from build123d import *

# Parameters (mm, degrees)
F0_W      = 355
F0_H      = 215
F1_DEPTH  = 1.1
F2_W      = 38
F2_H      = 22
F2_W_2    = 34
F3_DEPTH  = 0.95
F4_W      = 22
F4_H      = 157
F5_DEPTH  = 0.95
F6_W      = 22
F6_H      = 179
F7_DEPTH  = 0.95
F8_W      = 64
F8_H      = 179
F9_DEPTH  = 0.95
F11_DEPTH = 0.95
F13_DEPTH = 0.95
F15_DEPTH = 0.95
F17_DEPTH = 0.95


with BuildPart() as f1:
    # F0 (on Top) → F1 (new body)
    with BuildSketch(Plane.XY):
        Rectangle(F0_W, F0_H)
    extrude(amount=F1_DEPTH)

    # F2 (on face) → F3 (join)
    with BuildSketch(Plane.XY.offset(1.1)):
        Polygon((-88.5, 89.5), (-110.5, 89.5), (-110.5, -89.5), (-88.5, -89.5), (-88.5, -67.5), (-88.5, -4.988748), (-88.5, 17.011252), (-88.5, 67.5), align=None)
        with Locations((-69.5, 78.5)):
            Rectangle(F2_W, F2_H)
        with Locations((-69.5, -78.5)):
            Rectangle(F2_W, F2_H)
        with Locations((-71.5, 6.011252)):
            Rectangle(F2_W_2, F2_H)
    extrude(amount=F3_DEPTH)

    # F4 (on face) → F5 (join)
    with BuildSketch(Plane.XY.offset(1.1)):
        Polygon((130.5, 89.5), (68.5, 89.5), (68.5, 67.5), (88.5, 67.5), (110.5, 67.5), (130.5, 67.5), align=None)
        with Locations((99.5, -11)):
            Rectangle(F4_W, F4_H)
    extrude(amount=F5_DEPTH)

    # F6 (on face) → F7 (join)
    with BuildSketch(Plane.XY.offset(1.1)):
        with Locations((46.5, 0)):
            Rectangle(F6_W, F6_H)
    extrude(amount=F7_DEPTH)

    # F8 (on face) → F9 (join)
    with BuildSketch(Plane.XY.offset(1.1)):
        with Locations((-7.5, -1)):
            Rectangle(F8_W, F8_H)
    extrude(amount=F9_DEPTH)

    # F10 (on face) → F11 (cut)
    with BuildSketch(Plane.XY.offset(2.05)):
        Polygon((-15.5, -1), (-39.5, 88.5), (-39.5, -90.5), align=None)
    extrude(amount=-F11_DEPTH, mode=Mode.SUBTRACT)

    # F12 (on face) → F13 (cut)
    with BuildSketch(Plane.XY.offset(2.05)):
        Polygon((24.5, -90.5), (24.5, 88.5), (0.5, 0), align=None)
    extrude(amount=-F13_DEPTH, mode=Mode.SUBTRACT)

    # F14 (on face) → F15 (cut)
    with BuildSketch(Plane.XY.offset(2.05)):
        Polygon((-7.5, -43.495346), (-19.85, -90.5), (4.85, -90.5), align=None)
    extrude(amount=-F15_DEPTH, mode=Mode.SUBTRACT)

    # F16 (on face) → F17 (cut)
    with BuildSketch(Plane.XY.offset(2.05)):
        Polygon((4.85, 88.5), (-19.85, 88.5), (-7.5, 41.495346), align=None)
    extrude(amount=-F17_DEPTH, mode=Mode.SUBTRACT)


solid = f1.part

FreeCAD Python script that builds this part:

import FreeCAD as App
import Part
import Sketcher

V = App.Vector
Q = App.Units.Quantity


def add_polygon(sketch, points):
    """Adds a closed chain of lines whose ends are joined by coincident constraints."""
    first, n = sketch.GeometryCount, len(points)
    for a, b in zip(points, points[1:] + points[:1]):
        sketch.addGeometry(Part.LineSegment(App.Vector(*a, 0), App.Vector(*b, 0)), False)
    for i in range(n):
        sketch.addConstraint(Sketcher.Constraint("Coincident", first + i, 2, first + (i + 1) % n, 1))

doc = App.newDocument("Part")
body = doc.addObject("PartDesign::Body", "Body")

# Sketch on XY plane
sketch1 = doc.addObject("Sketcher::SketchObject", "Sketch")
body.addObject(sketch1)
sketch1.AttachmentSupport = (doc.XY_Plane, [""])
sketch1.MapMode = "FlatFace"
add_polygon(sketch1, [(-178, 108), (-178, -108), (178, -108), (178, 108)])  # lines 0-3
sketch1.addConstraint([
    Sketcher.Constraint("Vertical", 0),
    Sketcher.Constraint("Horizontal", 1),
    Sketcher.Constraint("Vertical", 2),
    Sketcher.Constraint("Horizontal", 3),
    Sketcher.Constraint("Symmetric", 0, 2, 2, 2, -1, 1),
    Sketcher.Constraint("DistanceX", 1, 1, 1, 2, Q("355 mm")),
    Sketcher.Constraint("DistanceY", 0, 2, 0, 1, Q("215 mm")),
])
pad1 = doc.addObject("PartDesign::Pad", "Pad")
body.addObject(pad1)
pad1.Profile = sketch1
pad1.Length = 1.1

# Sketch on XY plane
sketch2 = doc.addObject("Sketcher::SketchObject", "Sketch001")
body.addObject(sketch2)
sketch2.AttachmentSupport = (doc.XY_Plane, [""])
sketch2.MapMode = "FlatFace"
sketch2.AttachmentOffset = App.Placement(V(0, 0, 1.1), App.Rotation())
add_polygon(sketch2, [(-110, 90), (-110, -90), (-50, -90), (-50, -68), (-88, -68), (-88, -5), (-54, -5), (-54, 17), (-88, 17), (-88, 68), (-50, 68), (-50, 90)])  # lines 0-11
sketch2.addConstraint([
    Sketcher.Constraint("Vertical", 0),
    Sketcher.Constraint("Horizontal", 1),
    Sketcher.Constraint("Vertical", 2),
    Sketcher.Constraint("Horizontal", 3),
    Sketcher.Constraint("Vertical", 4),
    Sketcher.Constraint("Horizontal", 5),
    Sketcher.Constraint("Vertical", 6),
    Sketcher.Constraint("Horizontal", 7),
    Sketcher.Constraint("Vertical", 8),
    Sketcher.Constraint("Horizontal", 9),
    Sketcher.Constraint("Vertical", 10),
    Sketcher.Constraint("Horizontal", 11),
    Sketcher.Constraint("Symmetric", 3, 2, 8, 2, -1),
    Sketcher.Constraint("Symmetric", 1, 2, 10, 2, -1),
    Sketcher.Constraint("Equal", 2, 6),
    Sketcher.Constraint("DistanceX", 1, 1, 1, 2, Q("60 mm")),
    Sketcher.Constraint("DistanceX", 3, 2, 3, 1, Q("38 mm")),
    Sketcher.Constraint("DistanceX", 5, 1, 5, 2, Q("34 mm")),
    Sketcher.Constraint("DistanceY", 0, 2, 0, 1, Q("179 mm")),
    Sketcher.Constraint("DistanceY", 2, 1, 2, 2, Q("22 mm")),
    Sketcher.Constraint("DistanceX", 0, 2, -1, 1, Q("110.5 mm")),
    Sketcher.Constraint("DistanceY", 4, 1, 4, 2, Q("62.511252 mm")),
])
pad2 = doc.addObject("PartDesign::Pad", "Pad001")
body.addObject(pad2)
pad2.Profile = sketch2
pad2.Length = 0.95

# Sketch on XY plane
sketch3 = doc.addObject("Sketcher::SketchObject", "Sketch002")
body.addObject(sketch3)
sketch3.AttachmentSupport = (doc.XY_Plane, [""])
sketch3.MapMode = "FlatFace"
sketch3.AttachmentOffset = App.Placement(V(0, 0, 1.1), App.Rotation())
add_polygon(sketch3, [(130, 90), (68, 90), (68, 68), (88, 68), (88, -90), (110, -90), (110, 68), (130, 68)])  # lines 0-7
sketch3.addConstraint([
    Sketcher.Constraint("Horizontal", 0),
    Sketcher.Constraint("Vertical", 1),
    Sketcher.Constraint("Horizontal", 2),
    Sketcher.Constraint("Vertical", 3),
    Sketcher.Constraint("Horizontal", 4),
    Sketcher.Constraint("Vertical", 5),
    Sketcher.Constraint("Horizontal", 6),
    Sketcher.Constraint("Vertical", 7),
    Sketcher.Constraint("Horizontal", 2, 2, 5, 2),
    Sketcher.Constraint("Equal", 2, 6),
    Sketcher.Constraint("Equal", 4, 1),
    Sketcher.Constraint("DistanceX", 0, 2, 0, 1, Q("62 mm")),
    Sketcher.Constraint("DistanceX", 2, 1, 2, 2, Q("20 mm")),
    Sketcher.Constraint("DistanceY", 3, 2, 3, 1, Q("157 mm")),
    Sketcher.Constraint("DistanceX", -1, 1, 0, 2, Q("68.5 mm")),
    Sketcher.Constraint("DistanceY", -1, 1, 0, 2, Q("89.5 mm")),
])
pad3 = doc.addObject("PartDesign::Pad", "Pad002")
body.addObject(pad3)
pad3.Profile = sketch3
pad3.Length = 0.95

# Sketch on XY plane
sketch4 = doc.addObject("Sketcher::SketchObject", "Sketch003")
body.addObject(sketch4)
sketch4.AttachmentSupport = (doc.XY_Plane, [""])
sketch4.MapMode = "FlatFace"
sketch4.AttachmentOffset = App.Placement(V(0, 0, 1.1), App.Rotation())
add_polygon(sketch4, [(36, 90), (36, -90), (58, -90), (58, 90)])  # lines 0-3
sketch4.addConstraint([
    Sketcher.Constraint("Vertical", 0),
    Sketcher.Constraint("Horizontal", 1),
    Sketcher.Constraint("Vertical", 2),
    Sketcher.Constraint("Horizontal", 3),
    Sketcher.Constraint("DistanceX", 1, 1, 1, 2, Q("22 mm")),
    Sketcher.Constraint("DistanceY", 0, 2, 0, 1, Q("179 mm")),
    Sketcher.Constraint("DistanceX", -1, 1, 0, 2, Q("35.5 mm")),
    Sketcher.Constraint("DistanceY", 0, 2, -1, 1, Q("89.5 mm")),
])
pad4 = doc.addObject("PartDesign::Pad", "Pad003")
body.addObject(pad4)
pad4.Profile = sketch4
pad4.Length = 0.95

# Sketch on XY plane
sketch5 = doc.addObject("Sketcher::SketchObject", "Sketch004")
body.addObject(sketch5)
sketch5.AttachmentSupport = (doc.XY_Plane, [""])
sketch5.MapMode = "FlatFace"
sketch5.AttachmentOffset = App.Placement(V(0, 0, 1.1), App.Rotation())
add_polygon(sketch5, [(-40, 88), (-40, -90), (24, -90), (24, 88)])  # lines 0-3
sketch5.addConstraint([
    Sketcher.Constraint("Vertical", 0),
    Sketcher.Constraint("Horizontal", 1),
    Sketcher.Constraint("Vertical", 2),
    Sketcher.Constraint("Horizontal", 3),
    Sketcher.Constraint("DistanceX", 1, 1, 1, 2, Q("64 mm")),
    Sketcher.Constraint("DistanceY", 0, 2, 0, 1, Q("179 mm")),
    Sketcher.Constraint("DistanceX", 0, 2, -1, 1, Q("39.5 mm")),
    Sketcher.Constraint("DistanceY", 0, 2, -1, 1, Q("90.5 mm")),
])
pad5 = doc.addObject("PartDesign::Pad", "Pad004")
body.addObject(pad5)
pad5.Profile = sketch5
pad5.Length = 0.95

# Sketch on XY plane
sketch6 = doc.addObject("Sketcher::SketchObject", "Sketch005")
body.addObject(sketch6)
sketch6.AttachmentSupport = (doc.XY_Plane, [""])
sketch6.MapMode = "FlatFace"
sketch6.AttachmentOffset = App.Placement(V(0, 0, 2.05), App.Rotation())
add_polygon(sketch6, [(-16, -1), (-40, 88), (-40, -90)])  # lines 0-2
sketch6.addConstraint([
    Sketcher.Constraint("Vertical", 1),
    Sketcher.Constraint("Equal", 0, 2),
    Sketcher.Constraint("DistanceY", 1, 2, 1, 1, Q("179 mm")),
    Sketcher.Constraint("DistanceY", 2, 2, -1, 1, Q("1 mm")),
    Sketcher.Constraint("DistanceX", 0, 2, 2, 2, Q("24 mm")),
    Sketcher.Constraint("DistanceX", 0, 2, -1, 1, Q("39.5 mm")),
])
pocket1 = doc.addObject("PartDesign::Pocket", "Pocket")
body.addObject(pocket1)
pocket1.Profile = sketch6
pocket1.Length = 0.95

# Sketch on XY plane
sketch7 = doc.addObject("Sketcher::SketchObject", "Sketch006")
body.addObject(sketch7)
sketch7.AttachmentSupport = (doc.XY_Plane, [""])
sketch7.MapMode = "FlatFace"
sketch7.AttachmentOffset = App.Placement(V(0, 0, 2.05), App.Rotation())
add_polygon(sketch7, [(24, -90), (24, 88), (0, 0)])  # lines 0-2
sketch7.addConstraint([
    Sketcher.Constraint("Vertical", 0),
    Sketcher.Constraint("PointOnObject", 1, 2, -1),
    Sketcher.Constraint("DistanceY", 0, 1, 0, 2, Q("179 mm")),
    Sketcher.Constraint("DistanceX", 1, 2, 0, 2, Q("24 mm")),
    Sketcher.Constraint("DistanceX", -1, 1, 0, 2, Q("24.5 mm")),
    Sketcher.Constraint("DistanceY", -1, 1, 0, 2, Q("88.5 mm")),
])
pocket2 = doc.addObject("PartDesign::Pocket", "Pocket001")
body.addObject(pocket2)
pocket2.Profile = sketch7
pocket2.Length = 0.95

# Sketch on XY plane
sketch8 = doc.addObject("Sketcher::SketchObject", "Sketch007")
body.addObject(sketch8)
sketch8.AttachmentSupport = (doc.XY_Plane, [""])
sketch8.MapMode = "FlatFace"
sketch8.AttachmentOffset = App.Placement(V(0, 0, 2.05), App.Rotation())
add_polygon(sketch8, [(-8, -43), (-20, -90), (5, -90)])  # lines 0-2
sketch8.addConstraint([
    Sketcher.Constraint("Horizontal", 1),
    Sketcher.Constraint("Equal", 0, 2),
    Sketcher.Constraint("DistanceX", 1, 1, 1, 2, Q("24.7 mm")),
    Sketcher.Constraint("Distance", 0, Q("48.6 mm")),
    Sketcher.Constraint("DistanceY", 0, 2, -1, 1, Q("90.5 mm")),
    Sketcher.Constraint("DistanceX", 2, 2, -1, 1, Q("7.5 mm")),
])
pocket3 = doc.addObject("PartDesign::Pocket", "Pocket002")
body.addObject(pocket3)
pocket3.Profile = sketch8
pocket3.Length = 0.95

# Sketch on XY plane
sketch9 = doc.addObject("Sketcher::SketchObject", "Sketch008")
body.addObject(sketch9)
sketch9.AttachmentSupport = (doc.XY_Plane, [""])
sketch9.MapMode = "FlatFace"
sketch9.AttachmentOffset = App.Placement(V(0, 0, 2.05), App.Rotation())
add_polygon(sketch9, [(5, 88), (-20, 88), (-8, 41)])  # lines 0-2
sketch9.addConstraint([
    Sketcher.Constraint("Horizontal", 0),
    Sketcher.Constraint("Equal", 1, 2),
    Sketcher.Constraint("DistanceX", 0, 2, 0, 1, Q("24.7 mm")),
    Sketcher.Constraint("Distance", 1, Q("48.6 mm")),
    Sketcher.Constraint("DistanceY", -1, 1, 0, 2, Q("88.5 mm")),
    Sketcher.Constraint("DistanceX", 1, 2, -1, 1, Q("7.5 mm")),
])
pocket4 = doc.addObject("PartDesign::Pocket", "Pocket003")
body.addObject(pocket4)
pocket4.Profile = sketch9
pocket4.Length = 0.95

doc.recompute()
